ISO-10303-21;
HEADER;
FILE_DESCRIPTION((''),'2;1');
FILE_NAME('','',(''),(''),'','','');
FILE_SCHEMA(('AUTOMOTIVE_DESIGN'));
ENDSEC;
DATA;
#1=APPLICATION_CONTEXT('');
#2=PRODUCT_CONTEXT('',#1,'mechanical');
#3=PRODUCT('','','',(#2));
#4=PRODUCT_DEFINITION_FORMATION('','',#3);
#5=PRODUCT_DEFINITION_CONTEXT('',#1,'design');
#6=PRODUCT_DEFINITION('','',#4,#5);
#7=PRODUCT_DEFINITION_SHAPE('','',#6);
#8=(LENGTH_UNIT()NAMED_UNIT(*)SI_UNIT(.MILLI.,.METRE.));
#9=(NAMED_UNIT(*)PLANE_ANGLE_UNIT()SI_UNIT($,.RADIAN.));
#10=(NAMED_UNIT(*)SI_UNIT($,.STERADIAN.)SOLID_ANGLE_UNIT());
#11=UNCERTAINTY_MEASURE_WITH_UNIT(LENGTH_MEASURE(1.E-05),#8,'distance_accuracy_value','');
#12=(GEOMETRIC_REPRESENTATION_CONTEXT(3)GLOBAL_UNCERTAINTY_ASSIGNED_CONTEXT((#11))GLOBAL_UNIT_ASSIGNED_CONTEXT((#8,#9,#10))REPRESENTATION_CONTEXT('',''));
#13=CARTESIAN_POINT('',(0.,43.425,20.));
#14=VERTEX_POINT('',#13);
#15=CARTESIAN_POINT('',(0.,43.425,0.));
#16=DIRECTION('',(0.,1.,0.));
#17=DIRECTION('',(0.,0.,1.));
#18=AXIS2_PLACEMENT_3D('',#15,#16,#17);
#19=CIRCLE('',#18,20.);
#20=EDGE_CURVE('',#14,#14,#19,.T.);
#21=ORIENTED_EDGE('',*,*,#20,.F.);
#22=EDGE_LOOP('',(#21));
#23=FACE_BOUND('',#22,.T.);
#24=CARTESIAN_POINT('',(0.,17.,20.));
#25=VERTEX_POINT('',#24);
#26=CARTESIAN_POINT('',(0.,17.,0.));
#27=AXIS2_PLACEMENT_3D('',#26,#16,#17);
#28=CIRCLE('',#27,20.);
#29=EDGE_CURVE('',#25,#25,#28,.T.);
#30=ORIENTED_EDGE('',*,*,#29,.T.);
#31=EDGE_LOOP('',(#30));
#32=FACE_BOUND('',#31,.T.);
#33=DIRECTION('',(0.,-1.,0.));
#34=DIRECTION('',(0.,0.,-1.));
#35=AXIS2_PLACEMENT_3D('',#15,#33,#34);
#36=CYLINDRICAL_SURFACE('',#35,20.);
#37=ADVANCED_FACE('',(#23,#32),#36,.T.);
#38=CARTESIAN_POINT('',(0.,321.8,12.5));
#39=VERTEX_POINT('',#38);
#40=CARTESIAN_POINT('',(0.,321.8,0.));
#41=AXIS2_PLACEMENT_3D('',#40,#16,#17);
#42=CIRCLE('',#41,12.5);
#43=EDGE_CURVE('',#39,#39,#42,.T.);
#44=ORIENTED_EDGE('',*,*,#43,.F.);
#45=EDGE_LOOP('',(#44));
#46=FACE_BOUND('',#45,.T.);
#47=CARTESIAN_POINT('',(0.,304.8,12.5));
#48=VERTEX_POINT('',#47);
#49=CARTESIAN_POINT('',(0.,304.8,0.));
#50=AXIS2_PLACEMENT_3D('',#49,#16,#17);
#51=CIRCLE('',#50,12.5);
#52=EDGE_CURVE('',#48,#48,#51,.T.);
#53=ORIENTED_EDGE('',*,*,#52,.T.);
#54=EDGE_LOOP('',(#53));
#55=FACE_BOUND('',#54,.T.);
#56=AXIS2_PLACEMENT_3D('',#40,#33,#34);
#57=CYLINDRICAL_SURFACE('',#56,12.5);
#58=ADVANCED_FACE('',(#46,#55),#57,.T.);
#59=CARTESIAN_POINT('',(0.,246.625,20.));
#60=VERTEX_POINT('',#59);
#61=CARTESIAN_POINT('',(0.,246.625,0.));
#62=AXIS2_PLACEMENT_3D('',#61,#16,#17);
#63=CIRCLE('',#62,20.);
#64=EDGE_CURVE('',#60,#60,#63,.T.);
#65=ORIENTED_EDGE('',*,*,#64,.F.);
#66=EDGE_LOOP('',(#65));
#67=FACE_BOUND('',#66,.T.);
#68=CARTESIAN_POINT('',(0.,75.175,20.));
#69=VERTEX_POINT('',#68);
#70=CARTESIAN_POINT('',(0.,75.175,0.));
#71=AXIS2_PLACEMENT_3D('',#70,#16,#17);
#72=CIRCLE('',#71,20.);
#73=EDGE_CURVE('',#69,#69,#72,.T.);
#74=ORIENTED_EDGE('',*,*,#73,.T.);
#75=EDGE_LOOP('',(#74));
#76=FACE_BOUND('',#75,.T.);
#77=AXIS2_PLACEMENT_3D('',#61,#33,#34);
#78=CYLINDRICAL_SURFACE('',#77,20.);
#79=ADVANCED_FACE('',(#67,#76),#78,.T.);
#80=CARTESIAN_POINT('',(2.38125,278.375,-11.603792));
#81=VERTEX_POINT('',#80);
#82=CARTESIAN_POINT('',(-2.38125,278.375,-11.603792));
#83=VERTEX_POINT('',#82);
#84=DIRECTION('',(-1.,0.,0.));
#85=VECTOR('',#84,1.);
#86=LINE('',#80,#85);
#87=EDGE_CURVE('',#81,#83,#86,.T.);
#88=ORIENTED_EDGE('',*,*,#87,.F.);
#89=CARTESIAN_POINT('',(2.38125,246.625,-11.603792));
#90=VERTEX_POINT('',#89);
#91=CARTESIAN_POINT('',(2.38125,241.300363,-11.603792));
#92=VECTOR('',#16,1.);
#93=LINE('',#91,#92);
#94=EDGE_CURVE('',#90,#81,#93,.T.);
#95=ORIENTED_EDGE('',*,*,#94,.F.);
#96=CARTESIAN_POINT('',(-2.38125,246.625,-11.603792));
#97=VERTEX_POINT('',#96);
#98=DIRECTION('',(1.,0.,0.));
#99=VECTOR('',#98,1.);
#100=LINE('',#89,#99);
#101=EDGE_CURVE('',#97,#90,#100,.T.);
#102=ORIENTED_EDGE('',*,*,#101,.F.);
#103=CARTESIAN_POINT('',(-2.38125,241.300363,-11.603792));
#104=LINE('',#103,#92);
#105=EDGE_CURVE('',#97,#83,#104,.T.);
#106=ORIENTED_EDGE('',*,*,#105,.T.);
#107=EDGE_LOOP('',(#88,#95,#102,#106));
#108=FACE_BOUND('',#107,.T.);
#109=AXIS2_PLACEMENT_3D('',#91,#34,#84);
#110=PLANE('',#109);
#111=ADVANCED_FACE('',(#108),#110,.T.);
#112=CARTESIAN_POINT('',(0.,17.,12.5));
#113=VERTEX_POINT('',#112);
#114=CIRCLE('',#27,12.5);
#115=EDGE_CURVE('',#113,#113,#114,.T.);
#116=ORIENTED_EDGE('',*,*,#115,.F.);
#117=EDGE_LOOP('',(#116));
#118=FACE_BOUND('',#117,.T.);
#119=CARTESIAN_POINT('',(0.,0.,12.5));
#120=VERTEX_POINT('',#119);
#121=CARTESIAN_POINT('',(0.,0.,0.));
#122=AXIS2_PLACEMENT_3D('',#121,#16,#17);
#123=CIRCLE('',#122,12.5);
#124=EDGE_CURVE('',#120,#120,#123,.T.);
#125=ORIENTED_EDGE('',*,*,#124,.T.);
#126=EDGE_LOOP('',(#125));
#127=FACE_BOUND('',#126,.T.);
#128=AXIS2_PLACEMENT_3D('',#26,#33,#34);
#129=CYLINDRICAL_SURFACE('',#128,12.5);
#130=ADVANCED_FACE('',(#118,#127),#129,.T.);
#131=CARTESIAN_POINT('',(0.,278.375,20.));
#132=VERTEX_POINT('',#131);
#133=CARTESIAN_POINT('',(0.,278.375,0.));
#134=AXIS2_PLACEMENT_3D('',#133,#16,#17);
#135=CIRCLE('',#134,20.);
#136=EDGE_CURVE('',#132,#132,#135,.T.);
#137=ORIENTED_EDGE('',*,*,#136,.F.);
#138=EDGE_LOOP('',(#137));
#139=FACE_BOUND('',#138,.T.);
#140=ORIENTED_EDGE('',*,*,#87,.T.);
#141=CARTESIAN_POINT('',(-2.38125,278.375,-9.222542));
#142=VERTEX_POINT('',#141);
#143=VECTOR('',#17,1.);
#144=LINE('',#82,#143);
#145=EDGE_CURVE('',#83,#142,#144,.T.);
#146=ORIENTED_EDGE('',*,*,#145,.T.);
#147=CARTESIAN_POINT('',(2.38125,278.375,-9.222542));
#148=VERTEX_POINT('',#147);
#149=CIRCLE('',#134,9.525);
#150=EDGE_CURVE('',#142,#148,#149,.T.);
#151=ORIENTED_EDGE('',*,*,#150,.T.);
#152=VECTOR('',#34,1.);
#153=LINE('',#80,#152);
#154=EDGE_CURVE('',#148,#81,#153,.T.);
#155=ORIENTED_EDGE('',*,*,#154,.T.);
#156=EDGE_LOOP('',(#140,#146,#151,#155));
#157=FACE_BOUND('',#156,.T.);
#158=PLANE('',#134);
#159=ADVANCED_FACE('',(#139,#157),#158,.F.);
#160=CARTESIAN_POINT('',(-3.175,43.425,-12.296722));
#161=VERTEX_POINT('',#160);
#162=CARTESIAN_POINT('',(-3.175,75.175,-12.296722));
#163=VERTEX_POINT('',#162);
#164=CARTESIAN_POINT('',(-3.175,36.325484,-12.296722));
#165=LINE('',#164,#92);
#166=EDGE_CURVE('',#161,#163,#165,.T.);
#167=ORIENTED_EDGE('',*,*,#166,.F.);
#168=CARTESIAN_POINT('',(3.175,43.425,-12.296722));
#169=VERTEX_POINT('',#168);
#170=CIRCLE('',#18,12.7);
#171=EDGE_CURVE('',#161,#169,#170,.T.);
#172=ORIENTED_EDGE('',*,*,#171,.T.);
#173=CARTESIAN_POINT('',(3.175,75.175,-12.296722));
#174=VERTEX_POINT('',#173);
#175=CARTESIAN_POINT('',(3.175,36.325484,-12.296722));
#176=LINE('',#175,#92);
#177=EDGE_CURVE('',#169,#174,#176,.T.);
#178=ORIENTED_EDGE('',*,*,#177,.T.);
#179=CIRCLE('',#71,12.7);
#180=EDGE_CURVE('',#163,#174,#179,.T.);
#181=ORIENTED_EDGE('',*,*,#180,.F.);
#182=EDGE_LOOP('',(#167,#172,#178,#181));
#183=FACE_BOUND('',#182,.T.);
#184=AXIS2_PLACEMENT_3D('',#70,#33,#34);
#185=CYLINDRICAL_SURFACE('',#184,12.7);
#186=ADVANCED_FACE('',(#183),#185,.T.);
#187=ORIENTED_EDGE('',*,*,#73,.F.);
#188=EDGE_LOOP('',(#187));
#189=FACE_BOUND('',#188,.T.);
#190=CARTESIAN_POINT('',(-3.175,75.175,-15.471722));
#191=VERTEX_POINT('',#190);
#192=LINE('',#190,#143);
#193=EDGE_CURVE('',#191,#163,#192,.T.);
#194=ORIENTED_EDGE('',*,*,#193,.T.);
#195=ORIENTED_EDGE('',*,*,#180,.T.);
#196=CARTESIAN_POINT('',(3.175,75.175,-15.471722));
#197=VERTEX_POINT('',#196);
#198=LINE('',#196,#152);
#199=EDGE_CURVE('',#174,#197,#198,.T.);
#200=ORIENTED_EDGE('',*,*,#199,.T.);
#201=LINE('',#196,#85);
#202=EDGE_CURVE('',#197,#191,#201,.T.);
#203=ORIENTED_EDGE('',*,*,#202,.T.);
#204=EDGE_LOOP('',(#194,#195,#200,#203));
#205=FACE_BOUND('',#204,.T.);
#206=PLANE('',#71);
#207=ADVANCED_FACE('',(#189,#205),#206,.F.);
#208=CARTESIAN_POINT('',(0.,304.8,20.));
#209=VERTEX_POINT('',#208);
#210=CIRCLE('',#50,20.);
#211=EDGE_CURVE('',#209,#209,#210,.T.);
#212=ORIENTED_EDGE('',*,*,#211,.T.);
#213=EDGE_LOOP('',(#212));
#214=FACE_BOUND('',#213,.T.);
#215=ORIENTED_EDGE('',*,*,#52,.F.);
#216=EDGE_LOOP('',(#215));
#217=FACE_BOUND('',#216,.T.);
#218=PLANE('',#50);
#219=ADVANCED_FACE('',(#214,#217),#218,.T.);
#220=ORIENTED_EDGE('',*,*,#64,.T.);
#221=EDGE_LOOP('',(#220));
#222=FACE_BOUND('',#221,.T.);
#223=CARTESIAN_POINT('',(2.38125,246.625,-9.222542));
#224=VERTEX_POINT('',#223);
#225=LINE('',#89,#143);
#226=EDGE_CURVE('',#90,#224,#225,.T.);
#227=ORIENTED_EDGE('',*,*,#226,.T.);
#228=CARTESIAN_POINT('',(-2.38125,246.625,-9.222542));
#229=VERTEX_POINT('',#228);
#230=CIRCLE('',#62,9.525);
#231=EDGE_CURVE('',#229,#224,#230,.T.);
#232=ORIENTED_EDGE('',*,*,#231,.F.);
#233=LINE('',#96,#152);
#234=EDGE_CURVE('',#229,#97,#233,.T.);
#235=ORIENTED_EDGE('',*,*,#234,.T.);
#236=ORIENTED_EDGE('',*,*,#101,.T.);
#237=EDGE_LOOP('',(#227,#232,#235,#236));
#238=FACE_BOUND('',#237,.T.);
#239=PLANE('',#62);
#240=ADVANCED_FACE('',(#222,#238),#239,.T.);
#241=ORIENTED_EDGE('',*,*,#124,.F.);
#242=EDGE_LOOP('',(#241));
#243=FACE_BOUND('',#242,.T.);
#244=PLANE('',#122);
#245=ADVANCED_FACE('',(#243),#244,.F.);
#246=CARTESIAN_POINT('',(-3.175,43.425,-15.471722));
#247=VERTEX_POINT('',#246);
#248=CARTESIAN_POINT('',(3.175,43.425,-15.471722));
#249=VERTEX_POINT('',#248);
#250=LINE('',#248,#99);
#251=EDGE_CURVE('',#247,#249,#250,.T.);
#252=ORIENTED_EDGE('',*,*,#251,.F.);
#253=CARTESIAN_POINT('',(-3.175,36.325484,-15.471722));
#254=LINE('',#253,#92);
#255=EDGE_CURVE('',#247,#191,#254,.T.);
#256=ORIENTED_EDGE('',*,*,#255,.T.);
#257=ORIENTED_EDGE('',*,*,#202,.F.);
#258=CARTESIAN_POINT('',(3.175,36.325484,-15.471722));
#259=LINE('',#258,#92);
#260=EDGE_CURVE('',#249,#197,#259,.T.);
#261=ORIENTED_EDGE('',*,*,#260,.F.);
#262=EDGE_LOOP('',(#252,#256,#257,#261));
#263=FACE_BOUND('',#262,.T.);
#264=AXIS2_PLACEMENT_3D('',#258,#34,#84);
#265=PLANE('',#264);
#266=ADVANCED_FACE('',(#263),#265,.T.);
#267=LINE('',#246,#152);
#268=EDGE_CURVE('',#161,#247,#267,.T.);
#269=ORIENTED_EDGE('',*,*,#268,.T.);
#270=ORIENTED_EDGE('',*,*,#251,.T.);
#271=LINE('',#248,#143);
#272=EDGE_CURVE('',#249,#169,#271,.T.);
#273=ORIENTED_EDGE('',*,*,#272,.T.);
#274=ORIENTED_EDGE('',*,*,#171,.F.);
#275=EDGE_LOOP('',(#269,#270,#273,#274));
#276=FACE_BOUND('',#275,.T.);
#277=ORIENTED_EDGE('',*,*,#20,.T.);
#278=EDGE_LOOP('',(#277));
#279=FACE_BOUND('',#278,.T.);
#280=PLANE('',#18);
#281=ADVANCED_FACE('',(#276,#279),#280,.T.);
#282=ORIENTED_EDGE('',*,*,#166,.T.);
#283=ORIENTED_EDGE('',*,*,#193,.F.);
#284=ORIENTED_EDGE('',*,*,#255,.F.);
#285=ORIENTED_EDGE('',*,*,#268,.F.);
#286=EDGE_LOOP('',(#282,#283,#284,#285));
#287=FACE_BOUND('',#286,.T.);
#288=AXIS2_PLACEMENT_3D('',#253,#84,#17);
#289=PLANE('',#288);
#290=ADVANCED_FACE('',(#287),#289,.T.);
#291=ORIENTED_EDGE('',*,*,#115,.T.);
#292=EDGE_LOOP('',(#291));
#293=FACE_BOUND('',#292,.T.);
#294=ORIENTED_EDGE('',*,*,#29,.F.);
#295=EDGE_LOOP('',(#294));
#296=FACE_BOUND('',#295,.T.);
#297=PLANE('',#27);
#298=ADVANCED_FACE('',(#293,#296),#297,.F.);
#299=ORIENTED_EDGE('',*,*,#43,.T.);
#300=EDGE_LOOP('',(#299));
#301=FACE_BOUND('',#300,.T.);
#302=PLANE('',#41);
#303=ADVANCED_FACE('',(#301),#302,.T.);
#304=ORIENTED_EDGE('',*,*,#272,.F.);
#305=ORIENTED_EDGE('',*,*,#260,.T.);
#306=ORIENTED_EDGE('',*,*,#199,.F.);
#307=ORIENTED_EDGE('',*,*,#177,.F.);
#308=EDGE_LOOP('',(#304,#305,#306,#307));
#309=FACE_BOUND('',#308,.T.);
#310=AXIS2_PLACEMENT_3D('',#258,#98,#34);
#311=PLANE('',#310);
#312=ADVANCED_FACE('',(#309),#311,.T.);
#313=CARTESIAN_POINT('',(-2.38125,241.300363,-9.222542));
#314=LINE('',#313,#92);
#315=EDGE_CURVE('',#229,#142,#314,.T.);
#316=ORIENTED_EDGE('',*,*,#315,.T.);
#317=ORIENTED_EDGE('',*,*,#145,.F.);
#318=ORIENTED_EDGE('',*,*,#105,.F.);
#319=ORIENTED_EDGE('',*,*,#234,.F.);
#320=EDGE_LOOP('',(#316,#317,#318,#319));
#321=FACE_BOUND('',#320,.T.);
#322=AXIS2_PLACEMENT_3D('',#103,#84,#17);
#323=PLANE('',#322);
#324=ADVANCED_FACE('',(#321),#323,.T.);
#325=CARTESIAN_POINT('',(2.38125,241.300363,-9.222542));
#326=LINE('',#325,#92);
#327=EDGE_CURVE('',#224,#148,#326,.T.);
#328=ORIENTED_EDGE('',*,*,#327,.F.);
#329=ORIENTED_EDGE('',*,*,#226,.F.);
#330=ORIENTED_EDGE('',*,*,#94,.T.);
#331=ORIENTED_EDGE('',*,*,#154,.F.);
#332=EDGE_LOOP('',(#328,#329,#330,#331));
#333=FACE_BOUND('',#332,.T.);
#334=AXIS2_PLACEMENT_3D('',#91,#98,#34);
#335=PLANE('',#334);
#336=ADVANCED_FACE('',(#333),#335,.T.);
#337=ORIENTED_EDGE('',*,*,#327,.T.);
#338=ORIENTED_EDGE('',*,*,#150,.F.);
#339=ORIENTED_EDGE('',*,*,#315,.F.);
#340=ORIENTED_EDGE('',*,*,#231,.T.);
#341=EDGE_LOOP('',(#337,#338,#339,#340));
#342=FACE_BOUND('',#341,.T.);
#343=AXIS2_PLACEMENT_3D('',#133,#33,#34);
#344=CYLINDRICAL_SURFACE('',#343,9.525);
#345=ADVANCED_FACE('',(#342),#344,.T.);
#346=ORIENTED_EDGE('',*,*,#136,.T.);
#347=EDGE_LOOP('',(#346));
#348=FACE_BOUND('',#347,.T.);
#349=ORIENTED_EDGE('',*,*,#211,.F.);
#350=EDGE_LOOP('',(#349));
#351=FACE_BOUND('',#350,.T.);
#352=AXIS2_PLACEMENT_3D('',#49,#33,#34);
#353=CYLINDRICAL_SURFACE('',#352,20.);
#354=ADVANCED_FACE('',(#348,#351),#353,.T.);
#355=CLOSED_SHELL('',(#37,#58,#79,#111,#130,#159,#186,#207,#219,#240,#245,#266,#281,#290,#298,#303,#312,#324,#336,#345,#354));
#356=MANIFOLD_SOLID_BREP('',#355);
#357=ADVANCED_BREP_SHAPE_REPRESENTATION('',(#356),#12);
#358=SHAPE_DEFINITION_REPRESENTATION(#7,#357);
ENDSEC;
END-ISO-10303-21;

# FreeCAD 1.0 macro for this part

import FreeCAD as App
import Part
import Sketcher

V = App.Vector
Q = App.Units.Quantity


def add_polygon(sketch, points):
    """Adds a closed chain of lines whose ends are joined by coincident constraints."""
    first, n = sketch.GeometryCount, len(points)
    for a, b in zip(points, points[1:] + points[:1]):
        sketch.addGeometry(Part.LineSegment(App.Vector(*a, 0), App.Vector(*b, 0)), False)
    for i in range(n):
        sketch.addConstraint(Sketcher.Constraint("Coincident", first + i, 2, first + (i + 1) % n, 1))

doc = App.newDocument("Part")
body = doc.addObject("PartDesign::Body", "Body")

sketch1 = body.newObject("Sketcher::SketchObject", "Sketch")
sketch1.AttachmentSupport = (doc.getObject("XZ_Plane"), [""])
sketch1.MapMode = "FlatFace"
sketch1.addGeometry(Part.Circle(V(0, 0, 0), V(0, 0, 1), 12), False)
sketch1.addConstraint([
    Sketcher.Constraint("Coincident", 0, 3, -1, 1),
    Sketcher.Constraint("Diameter", 0, Q("25 mm")),
])
pad1 = body.newObject("PartDesign::Pad", "Pad")
pad1.Profile = sketch1
pad1.Length = 17
pad1.Reversed = True

sketch2 = body.newObject("Sketcher::SketchObject", "Sketch001")
sketch2.AttachmentSupport = (doc.getObject("XZ_Plane"), [""])
sketch2.MapMode = "FlatFace"
sketch2.AttachmentOffset = App.Placement(V(0, 0, -17), App.Rotation())
sketch2.addGeometry(Part.Circle(V(0, 0, 0), V(0, 0, 1), 20), False)
sketch2.addConstraint([
    Sketcher.Constraint("Coincident", 0, 3, -1, 1),
    Sketcher.Constraint("Diameter", 0, Q("40 mm")),
])
pad2 = body.newObject("PartDesign::Pad", "Pad001")
pad2.Profile = sketch2
pad2.Length = 26.425
pad2.Reversed = True

sketch3 = body.newObject("Sketcher::SketchObject", "Sketch002")
sketch3.AttachmentSupport = (doc.getObject("XZ_Plane"), [""])
sketch3.MapMode = "FlatFace"
sketch3.AttachmentOffset = App.Placement(V(0, 0, -43.425), App.Rotation())
sketch3.addGeometry(Part.Circle(V(0, 0, 0), V(0, 0, 1), 13), False)
sketch3.addConstraint([
    Sketcher.Constraint("Coincident", 0, 3, -1, 1),
    Sketcher.Constraint("Diameter", 0, Q("1 in")),
])
pad3 = body.newObject("PartDesign::Pad", "Pad002")
pad3.Profile = sketch3
pad3.Length = Q("1.25 in")
pad3.Reversed = True

sketch4 = body.newObject("Sketcher::SketchObject", "Sketch003")
sketch4.AttachmentSupport = (doc.getObject("XZ_Plane"), [""])
sketch4.MapMode = "FlatFace"
sketch4.AttachmentOffset = App.Placement(V(0, 0, -75.175), App.Rotation())
add_polygon(sketch4, [(-3.2, -15.5), (-3.2, -12.3), (3.2, -12.3), (3.2, -15.5)])
sketch4.addConstraint([
    Sketcher.Constraint("Vertical", 0),
    Sketcher.Constraint("Horizontal", 1),
    Sketcher.Constraint("Vertical", 2),
    Sketcher.Constraint("Horizontal", 3),
    Sketcher.Constraint("DistanceX", 1, 1, 1, 2, Q("0.25 in")),
    Sketcher.Constraint("DistanceY", 0, 1, 0, 2, Q("0.125 in")),
    Sketcher.Constraint("DistanceX", 0, 2, -1, 1, Q("0.125 in")),
    Sketcher.Constraint("DistanceY", 0, 2, -1, 1, Q("12.296722 mm")),
])
pad4 = body.newObject("PartDesign::Pad", "Pad003")
pad4.Profile = sketch4
pad4.Length = Q("1.25 in")

sketch5 = body.newObject("Sketcher::SketchObject", "Sketch004")
sketch5.AttachmentSupport = (doc.getObject("XZ_Plane"), [""])
sketch5.MapMode = "FlatFace"
sketch5.AttachmentOffset = App.Placement(V(0, 0, -75.175), App.Rotation())
sketch5.addGeometry(Part.Circle(V(0, 0, 0), V(0, 0, 1), 20), False)
sketch5.addConstraint([
    Sketcher.Constraint("Coincident", 0, 3, -1, 1),
    Sketcher.Constraint("Diameter", 0, Q("40 mm")),
])
pad5 = body.newObject("PartDesign::Pad", "Pad004")
pad5.Profile = sketch5
pad5.Length = Q("6.75 in")
pad5.Reversed = True

sketch6 = body.newObject("Sketcher::SketchObject", "Sketch005")
sketch6.AttachmentSupport = (doc.getObject("XZ_Plane"), [""])
sketch6.MapMode = "FlatFace"
sketch6.AttachmentOffset = App.Placement(V(0, 0, -246.625), App.Rotation())
sketch6.addGeometry(Part.Circle(V(0, 0, 0), V(0, 0, 1), 10), False)
sketch6.addConstraint([
    Sketcher.Constraint("Coincident", 0, 3, -1, 1),
    Sketcher.Constraint("Diameter", 0, Q("0.75 in")),
])
pad6 = body.newObject("PartDesign::Pad", "Pad005")
pad6.Profile = sketch6
pad6.Length = Q("1.25 in")
pad6.Reversed = True

sketch7 = body.newObject("Sketcher::SketchObject", "Sketch006")
sketch7.AttachmentSupport = (doc.getObject("XZ_Plane"), [""])
sketch7.MapMode = "FlatFace"
sketch7.AttachmentOffset = App.Placement(V(0, 0, -278.375), App.Rotation())
add_polygon(sketch7, [(-2.4, -11.6), (-2.4, -9.2), (2.4, -9.2), (2.4, -11.6)])
sketch7.addConstraint([
    Sketcher.Constraint("Vertical", 0),
    Sketcher.Constraint("Horizontal", 1),
    Sketcher.Constraint("Vertical", 2),
    Sketcher.Constraint("Horizontal", 3),
    Sketcher.Constraint("DistanceX", 1, 1, 1, 2, Q("0.1875 in")),
    Sketcher.Constraint("DistanceY", 0, 1, 0, 2, Q("0.09375 in")),
    Sketcher.Constraint("DistanceX", 0, 2, -1, 1, Q("0.09375 in")),
    Sketcher.Constraint("DistanceY", 0, 2, -1, 1, Q("9.222542 mm")),
])
pad7 = body.newObject("PartDesign::Pad", "Pad006")
pad7.Profile = sketch7
pad7.Length = Q("1.25 in")

sketch8 = body.newObject("Sketcher::SketchObject", "Sketch007")
sketch8.AttachmentSupport = (doc.getObject("XZ_Plane"), [""])
sketch8.MapMode = "FlatFace"
sketch8.AttachmentOffset = App.Placement(V(0, 0, -278.375), App.Rotation())
sketch8.addGeometry(Part.Circle(V(0, 0, 0), V(0, 0, 1), 20), False)
sketch8.addConstraint([
    Sketcher.Constraint("Coincident", 0, 3, -1, 1),
    Sketcher.Constraint("Diameter", 0, Q("40 mm")),
])
pad8 = body.newObject("PartDesign::Pad", "Pad007")
pad8.Profile = sketch8
pad8.Length = 26.425
pad8.Reversed = True

sketch9 = body.newObject("Sketcher::SketchObject", "Sketch008")
sketch9.AttachmentSupport = (doc.getObject("XZ_Plane"), [""])
sketch9.MapMode = "FlatFace"
sketch9.AttachmentOffset = App.Placement(V(0, 0, -12 * 25.4), App.Rotation())
sketch9.addGeometry(Part.Circle(V(0, 0, 0), V(0, 0, 1), 12), False)
sketch9.addConstraint([
    Sketcher.Constraint("Coincident", 0, 3, -1, 1),
    Sketcher.Constraint("Diameter", 0, Q("25 mm")),
])
pad9 = body.newObject("PartDesign::Pad", "Pad008")
pad9.Profile = sketch9
pad9.Length = 17
pad9.Reversed = True

doc.recompute()
